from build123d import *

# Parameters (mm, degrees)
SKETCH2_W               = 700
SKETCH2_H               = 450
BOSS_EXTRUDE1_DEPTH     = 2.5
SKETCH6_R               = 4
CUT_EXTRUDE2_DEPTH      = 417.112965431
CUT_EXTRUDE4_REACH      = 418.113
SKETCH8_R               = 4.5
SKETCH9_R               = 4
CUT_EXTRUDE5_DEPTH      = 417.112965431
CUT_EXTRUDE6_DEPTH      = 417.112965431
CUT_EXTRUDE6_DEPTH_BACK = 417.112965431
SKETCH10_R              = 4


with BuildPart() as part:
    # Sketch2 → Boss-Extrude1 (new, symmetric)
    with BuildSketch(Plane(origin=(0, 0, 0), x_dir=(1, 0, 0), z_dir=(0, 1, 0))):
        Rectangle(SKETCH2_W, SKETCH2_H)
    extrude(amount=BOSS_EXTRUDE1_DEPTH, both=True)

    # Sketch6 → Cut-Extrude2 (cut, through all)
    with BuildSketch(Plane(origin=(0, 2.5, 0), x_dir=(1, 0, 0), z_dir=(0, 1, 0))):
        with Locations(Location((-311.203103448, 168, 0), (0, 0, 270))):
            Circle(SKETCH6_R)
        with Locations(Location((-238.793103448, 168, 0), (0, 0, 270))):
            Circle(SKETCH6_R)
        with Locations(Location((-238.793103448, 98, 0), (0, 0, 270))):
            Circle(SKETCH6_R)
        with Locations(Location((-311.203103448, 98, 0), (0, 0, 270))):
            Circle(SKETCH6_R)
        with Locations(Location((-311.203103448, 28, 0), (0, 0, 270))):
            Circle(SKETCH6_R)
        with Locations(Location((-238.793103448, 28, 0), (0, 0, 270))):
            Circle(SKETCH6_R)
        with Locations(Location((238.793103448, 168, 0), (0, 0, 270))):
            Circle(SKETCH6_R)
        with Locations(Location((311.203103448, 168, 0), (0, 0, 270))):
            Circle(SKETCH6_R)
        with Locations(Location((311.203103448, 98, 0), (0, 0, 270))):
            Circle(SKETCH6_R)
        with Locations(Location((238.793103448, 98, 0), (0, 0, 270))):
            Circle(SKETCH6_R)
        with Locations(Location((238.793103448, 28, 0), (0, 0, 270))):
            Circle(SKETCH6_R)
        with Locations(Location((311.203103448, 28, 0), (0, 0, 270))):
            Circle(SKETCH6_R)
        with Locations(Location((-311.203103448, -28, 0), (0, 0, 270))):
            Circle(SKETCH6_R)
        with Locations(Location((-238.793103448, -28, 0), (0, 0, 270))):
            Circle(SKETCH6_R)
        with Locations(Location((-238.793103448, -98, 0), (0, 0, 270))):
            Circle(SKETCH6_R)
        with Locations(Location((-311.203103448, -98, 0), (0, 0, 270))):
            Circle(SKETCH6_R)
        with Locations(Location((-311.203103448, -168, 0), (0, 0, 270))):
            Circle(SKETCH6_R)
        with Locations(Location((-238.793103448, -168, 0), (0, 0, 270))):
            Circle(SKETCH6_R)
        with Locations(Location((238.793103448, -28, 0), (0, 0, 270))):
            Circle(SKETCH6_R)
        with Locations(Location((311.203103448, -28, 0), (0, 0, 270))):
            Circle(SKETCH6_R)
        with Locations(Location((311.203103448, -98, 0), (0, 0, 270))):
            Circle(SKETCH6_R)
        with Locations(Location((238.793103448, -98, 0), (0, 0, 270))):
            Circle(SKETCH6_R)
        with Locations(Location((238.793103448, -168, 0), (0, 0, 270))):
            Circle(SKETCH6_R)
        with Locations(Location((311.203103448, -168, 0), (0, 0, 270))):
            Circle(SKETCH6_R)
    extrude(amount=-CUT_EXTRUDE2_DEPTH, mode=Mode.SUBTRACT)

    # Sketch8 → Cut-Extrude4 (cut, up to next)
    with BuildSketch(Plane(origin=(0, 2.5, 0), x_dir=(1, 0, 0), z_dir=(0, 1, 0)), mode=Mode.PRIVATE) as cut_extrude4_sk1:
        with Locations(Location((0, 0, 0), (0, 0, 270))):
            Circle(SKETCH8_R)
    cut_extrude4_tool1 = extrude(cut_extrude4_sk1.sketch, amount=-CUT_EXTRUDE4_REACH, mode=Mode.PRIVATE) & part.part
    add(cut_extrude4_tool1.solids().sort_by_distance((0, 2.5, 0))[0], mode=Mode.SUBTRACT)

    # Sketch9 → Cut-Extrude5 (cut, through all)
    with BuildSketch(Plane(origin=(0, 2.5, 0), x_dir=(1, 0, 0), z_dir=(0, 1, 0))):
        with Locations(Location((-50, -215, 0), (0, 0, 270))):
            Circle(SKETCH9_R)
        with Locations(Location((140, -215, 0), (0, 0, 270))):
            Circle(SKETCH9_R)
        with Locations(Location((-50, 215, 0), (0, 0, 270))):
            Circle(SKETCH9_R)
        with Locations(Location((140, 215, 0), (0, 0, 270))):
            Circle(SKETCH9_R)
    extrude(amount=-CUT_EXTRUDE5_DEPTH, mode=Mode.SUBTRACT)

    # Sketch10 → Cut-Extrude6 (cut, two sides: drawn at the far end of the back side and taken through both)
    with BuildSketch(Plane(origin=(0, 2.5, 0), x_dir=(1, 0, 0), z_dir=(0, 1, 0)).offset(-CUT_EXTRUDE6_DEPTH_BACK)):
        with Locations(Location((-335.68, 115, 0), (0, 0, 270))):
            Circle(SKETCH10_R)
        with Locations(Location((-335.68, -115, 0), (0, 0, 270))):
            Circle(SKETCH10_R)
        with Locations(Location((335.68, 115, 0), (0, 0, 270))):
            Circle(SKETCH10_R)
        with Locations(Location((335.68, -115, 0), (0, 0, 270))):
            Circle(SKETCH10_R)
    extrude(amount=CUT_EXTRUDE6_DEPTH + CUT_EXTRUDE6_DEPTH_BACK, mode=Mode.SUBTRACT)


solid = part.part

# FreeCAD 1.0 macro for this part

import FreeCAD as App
import Part
import Sketcher

V = App.Vector


def add_polygon(sketch, points):
    """Adds a closed chain of lines whose ends are joined by coincident constraints."""
    first, n = sketch.GeometryCount, len(points)
    for a, b in zip(points, points[1:] + points[:1]):
        sketch.addGeometry(Part.LineSegment(App.Vector(*a, 0), App.Vector(*b, 0)), False)
    for i in range(n):
        sketch.addConstraint(Sketcher.Constraint("Coincident", first + i, 2, first + (i + 1) % n, 1))

doc = App.newDocument("Part")
body = doc.addObject("PartDesign::Body", "Body")

sketch1 = doc.addObject("Sketcher::SketchObject", "Sketch")
body.addObject(sketch1)
sketch1.AttachmentSupport = (doc.XZ_Plane, [""])
sketch1.MapMode = "FlatFace"
add_polygon(sketch1, [(-350, -225), (-350, 225), (350, 225), (350, -225)])
sketch1.addConstraint([
    Sketcher.Constraint("Vertical", 0),
    Sketcher.Constraint("Horizontal", 1),
    Sketcher.Constraint("Vertical", 2),
    Sketcher.Constraint("Horizontal", 3),
    Sketcher.Constraint("Symmetric", 0, 2, 2, 2, -1, 1),
    Sketcher.Constraint("DistanceX", 1, 1, 1, 2, 700.0),
    Sketcher.Constraint("DistanceY", 0, 1, 0, 2, 450.0),
])
pad1 = doc.addObject("PartDesign::Pad", "Pad")
body.addObject(pad1)
pad1.Profile = sketch1
pad1.Length = 5
pad1.Midplane = True

sketch2 = doc.addObject("Sketcher::SketchObject", "Sketch001")
body.addObject(sketch2)
sketch2.AttachmentSupport = (doc.XZ_Plane, [""])
sketch2.MapMode = "FlatFace"
sketch2.AttachmentOffset = App.Placement(V(0, 0, -2.5), App.Rotation())
sketch2.addGeometry([
    Part.Circle(V(-311.2, -168, 0), V(0, 0, 1), 4),
    Part.Circle(V(-238.8, -168, 0), V(0, 0, 1), 4),
    Part.Circle(V(-238.8, -98, 0), V(0, 0, 1), 4),
    Part.Circle(V(-311.2, -98, 0), V(0, 0, 1), 4),
    Part.Circle(V(-311.2, -28, 0), V(0, 0, 1), 4),
    Part.Circle(V(-238.8, -28, 0), V(0, 0, 1), 4),
    Part.Circle(V(238.8, -168, 0), V(0, 0, 1), 4),
    Part.Circle(V(311.2, -168, 0), V(0, 0, 1), 4),
    Part.Circle(V(311.2, -98, 0), V(0, 0, 1), 4),
    Part.Circle(V(238.8, -98, 0), V(0, 0, 1), 4),
    Part.Circle(V(238.8, -28, 0), V(0, 0, 1), 4),
    Part.Circle(V(311.2, -28, 0), V(0, 0, 1), 4),
    Part.Circle(V(-311.2, 28, 0), V(0, 0, 1), 4),
    Part.Circle(V(-238.8, 28, 0), V(0, 0, 1), 4),
    Part.Circle(V(-238.8, 98, 0), V(0, 0, 1), 4),
    Part.Circle(V(-311.2, 98, 0), V(0, 0, 1), 4),
    Part.Circle(V(-311.2, 168, 0), V(0, 0, 1), 4),
    Part.Circle(V(-238.8, 168, 0), V(0, 0, 1), 4),
    Part.Circle(V(238.8, 28, 0), V(0, 0, 1), 4),
    Part.Circle(V(311.2, 28, 0), V(0, 0, 1), 4),
    Part.Circle(V(311.2, 98, 0), V(0, 0, 1), 4),
    Part.Circle(V(238.8, 98, 0), V(0, 0, 1), 4),
    Part.Circle(V(238.8, 168, 0), V(0, 0, 1), 4),
    Part.Circle(V(311.2, 168, 0), V(0, 0, 1), 4),
], False)
sketch2.addConstraint([
    Sketcher.Constraint("Equal", 0, 1),
    Sketcher.Constraint("Equal", 1, 2),
    Sketcher.Constraint("Equal", 2, 3),
    Sketcher.Constraint("Equal", 3, 4),
    Sketcher.Constraint("Equal", 4, 5),
    Sketcher.Constraint("Equal", 5, 6),
    Sketcher.Constraint("Equal", 6, 7),
    Sketcher.Constraint("Equal", 7, 8),
    Sketcher.Constraint("Equal", 8, 9),
    Sketcher.Constraint("Equal", 9, 10),
    Sketcher.Constraint("Equal", 10, 11),
    Sketcher.Constraint("Equal", 11, 12),
    Sketcher.Constraint("Equal", 12, 13),
    Sketcher.Constraint("Equal", 13, 14),
    Sketcher.Constraint("Equal", 14, 15),
    Sketcher.Constraint("Equal", 15, 16),
    Sketcher.Constraint("Equal", 16, 17),
    Sketcher.Constraint("Equal", 17, 18),
    Sketcher.Constraint("Equal", 18, 19),
    Sketcher.Constraint("Equal", 19, 20),
    Sketcher.Constraint("Equal", 20, 21),
    Sketcher.Constraint("Equal", 21, 22),
    Sketcher.Constraint("Equal", 22, 23),
    Sketcher.Constraint("Symmetric", 11, 3, 12, 3, -1, 1),
    Sketcher.Constraint("Symmetric", 10, 3, 13, 3, -1, 1),
    Sketcher.Constraint("Symmetric", 9, 3, 14, 3, -1, 1),
    Sketcher.Constraint("Symmetric", 8, 3, 15, 3, -1, 1),
    Sketcher.Constraint("Symmetric", 7, 3, 16, 3, -1, 1),
    Sketcher.Constraint("Symmetric", 6, 3, 17, 3, -1, 1),
    Sketcher.Constraint("Symmetric", 5, 3, 18, 3, -1, 1),
    Sketcher.Constraint("Symmetric", 4, 3, 19, 3, -1, 1),
    Sketcher.Constraint("Symmetric", 3, 3, 20, 3, -1, 1),
    Sketcher.Constraint("Symmetric", 2, 3, 21, 3, -1, 1),
    Sketcher.Constraint("Symmetric", 1, 3, 22, 3, -1, 1),
    Sketcher.Constraint("Symmetric", 0, 3, 23, 3, -1, 1),
    Sketcher.Constraint("Symmetric", 1, 3, 6, 3, -2),
    Sketcher.Constraint("Symmetric", 0, 3, 7, 3, -2),
    Sketcher.Constraint("Symmetric", 3, 3, 8, 3, -2),
    Sketcher.Constraint("Symmetric", 2, 3, 9, 3, -2),
    Sketcher.Constraint("Symmetric", 5, 3, 10, 3, -2),
    Sketcher.Constraint("Symmetric", 4, 3, 11, 3, -2),
    Sketcher.Constraint("Horizontal", 0, 3, 1, 3),
    Sketcher.Constraint("Horizontal", 2, 3, 3, 3),
    Sketcher.Constraint("Horizontal", 4, 3, 5, 3),
    Sketcher.Constraint("Vertical", 1, 3, 2, 3),
    Sketcher.Constraint("Vertical", 0, 3, 3, 3),
    Sketcher.Constraint("Vertical", 3, 3, 4, 3),
    Sketcher.Constraint("Vertical", 2, 3, 5, 3),
    Sketcher.Constraint("Diameter", 0, 8.0),
    Sketcher.Constraint("DistanceY", 0, 3, -1, 1, 168.0),
    Sketcher.Constraint("DistanceY", 2, 3, -1, 1, 98.0),
    Sketcher.Constraint("DistanceY", 4, 3, -1, 1, 28.0),
    Sketcher.Constraint("DistanceX", 0, 3, 1, 3, 72.41),
    Sketcher.Constraint("DistanceX", 0, 3, -1, 1, 311.203103),
])
pocket1 = doc.addObject("PartDesign::Pocket", "Pocket")
body.addObject(pocket1)
pocket1.Profile = sketch2
pocket1.Type = "ThroughAll"
pocket1.Reversed = True

sketch3 = doc.addObject("Sketcher::SketchObject", "Sketch002")
body.addObject(sketch3)
sketch3.AttachmentSupport = (doc.XZ_Plane, [""])
sketch3.MapMode = "FlatFace"
sketch3.AttachmentOffset = App.Placement(V(0, 0, -2.5), App.Rotation())
sketch3.addGeometry(Part.Circle(V(0, 0, 0), V(0, 0, 1), 4.5), False)
sketch3.addConstraint([
    Sketcher.Constraint("Coincident", 0, 3, -1, 1),
    Sketcher.Constraint("Diameter", 0, 9.0),
])
pocket2 = doc.addObject("PartDesign::Pocket", "Pocket001")
body.addObject(pocket2)
pocket2.Profile = sketch3
pocket2.Type = "UpToFirst"
pocket2.Reversed = True

sketch4 = doc.addObject("Sketcher::SketchObject", "Sketch003")
body.addObject(sketch4)
sketch4.AttachmentSupport = (doc.XZ_Plane, [""])
sketch4.MapMode = "FlatFace"
sketch4.AttachmentOffset = App.Placement(V(0, 0, -2.5), App.Rotation())
sketch4.addGeometry([
    Part.Circle(V(-50, 215, 0), V(0, 0, 1), 4),
    Part.Circle(V(140, 215, 0), V(0, 0, 1), 4),
    Part.Circle(V(-50, -215, 0), V(0, 0, 1), 4),
    Part.Circle(V(140, -215, 0), V(0, 0, 1), 4),
], False)
sketch4.addConstraint([
    Sketcher.Constraint("Equal", 0, 1),
    Sketcher.Constraint("Equal", 1, 2),
    Sketcher.Constraint("Equal", 2, 3),
    Sketcher.Constraint("Symmetric", 0, 3, 2, 3, -1),
    Sketcher.Constraint("Symmetric", 1, 3, 3, 3, -1),
    Sketcher.Constraint("Horizontal", 0, 3, 1, 3),
    Sketcher.Constraint("Diameter", 0, 8.0),
    Sketcher.Constraint("DistanceX", 0, 3, -1, 1, 50.0),
    Sketcher.Constraint("DistanceY", -1, 1, 0, 3, 215.0),
    Sketcher.Constraint("DistanceX", -1, 1, 1, 3, 140.0),
])
pocket3 = doc.addObject("PartDesign::Pocket", "Pocket002")
body.addObject(pocket3)
pocket3.Profile = sketch4
pocket3.Type = "ThroughAll"
pocket3.Reversed = True

sketch5 = doc.addObject("Sketcher::SketchObject", "Sketch004")
body.addObject(sketch5)
sketch5.AttachmentSupport = (doc.XZ_Plane, [""])
sketch5.MapMode = "FlatFace"
sketch5.AttachmentOffset = App.Placement(V(0, 0, -2.5), App.Rotation())
sketch5.addGeometry([
    Part.Circle(V(-335.7, -115, 0), V(0, 0, 1), 4),
    Part.Circle(V(-335.7, 115, 0), V(0, 0, 1), 4),
    Part.Circle(V(335.7, -115, 0), V(0, 0, 1), 4),
    Part.Circle(V(335.7, 115, 0), V(0, 0, 1), 4),
], False)
sketch5.addConstraint([
    Sketcher.Constraint("Equal", 0, 1),
    Sketcher.Constraint("Equal", 1, 2),
    Sketcher.Constraint("Equal", 2, 3),
    Sketcher.Constraint("Symmetric", 1, 3, 2, 3, -1, 1),
    Sketcher.Constraint("Symmetric", 0, 3, 3, 3, -1, 1),
    Sketcher.Constraint("Symmetric", 0, 3, 2, 3, -2),
    Sketcher.Constraint("Diameter", 0, 8.0),
    Sketcher.Constraint("DistanceY", 0, 3, -1, 1, 115.0),
    Sketcher.Constraint("DistanceX", 0, 3, -1, 1, 335.68),
])
pocket4 = doc.addObject("PartDesign::Pocket", "Pocket003")
body.addObject(pocket4)
pocket4.Profile = sketch5
pocket4.Type = "ThroughAll"
pocket4.Midplane = True

doc.recompute()
